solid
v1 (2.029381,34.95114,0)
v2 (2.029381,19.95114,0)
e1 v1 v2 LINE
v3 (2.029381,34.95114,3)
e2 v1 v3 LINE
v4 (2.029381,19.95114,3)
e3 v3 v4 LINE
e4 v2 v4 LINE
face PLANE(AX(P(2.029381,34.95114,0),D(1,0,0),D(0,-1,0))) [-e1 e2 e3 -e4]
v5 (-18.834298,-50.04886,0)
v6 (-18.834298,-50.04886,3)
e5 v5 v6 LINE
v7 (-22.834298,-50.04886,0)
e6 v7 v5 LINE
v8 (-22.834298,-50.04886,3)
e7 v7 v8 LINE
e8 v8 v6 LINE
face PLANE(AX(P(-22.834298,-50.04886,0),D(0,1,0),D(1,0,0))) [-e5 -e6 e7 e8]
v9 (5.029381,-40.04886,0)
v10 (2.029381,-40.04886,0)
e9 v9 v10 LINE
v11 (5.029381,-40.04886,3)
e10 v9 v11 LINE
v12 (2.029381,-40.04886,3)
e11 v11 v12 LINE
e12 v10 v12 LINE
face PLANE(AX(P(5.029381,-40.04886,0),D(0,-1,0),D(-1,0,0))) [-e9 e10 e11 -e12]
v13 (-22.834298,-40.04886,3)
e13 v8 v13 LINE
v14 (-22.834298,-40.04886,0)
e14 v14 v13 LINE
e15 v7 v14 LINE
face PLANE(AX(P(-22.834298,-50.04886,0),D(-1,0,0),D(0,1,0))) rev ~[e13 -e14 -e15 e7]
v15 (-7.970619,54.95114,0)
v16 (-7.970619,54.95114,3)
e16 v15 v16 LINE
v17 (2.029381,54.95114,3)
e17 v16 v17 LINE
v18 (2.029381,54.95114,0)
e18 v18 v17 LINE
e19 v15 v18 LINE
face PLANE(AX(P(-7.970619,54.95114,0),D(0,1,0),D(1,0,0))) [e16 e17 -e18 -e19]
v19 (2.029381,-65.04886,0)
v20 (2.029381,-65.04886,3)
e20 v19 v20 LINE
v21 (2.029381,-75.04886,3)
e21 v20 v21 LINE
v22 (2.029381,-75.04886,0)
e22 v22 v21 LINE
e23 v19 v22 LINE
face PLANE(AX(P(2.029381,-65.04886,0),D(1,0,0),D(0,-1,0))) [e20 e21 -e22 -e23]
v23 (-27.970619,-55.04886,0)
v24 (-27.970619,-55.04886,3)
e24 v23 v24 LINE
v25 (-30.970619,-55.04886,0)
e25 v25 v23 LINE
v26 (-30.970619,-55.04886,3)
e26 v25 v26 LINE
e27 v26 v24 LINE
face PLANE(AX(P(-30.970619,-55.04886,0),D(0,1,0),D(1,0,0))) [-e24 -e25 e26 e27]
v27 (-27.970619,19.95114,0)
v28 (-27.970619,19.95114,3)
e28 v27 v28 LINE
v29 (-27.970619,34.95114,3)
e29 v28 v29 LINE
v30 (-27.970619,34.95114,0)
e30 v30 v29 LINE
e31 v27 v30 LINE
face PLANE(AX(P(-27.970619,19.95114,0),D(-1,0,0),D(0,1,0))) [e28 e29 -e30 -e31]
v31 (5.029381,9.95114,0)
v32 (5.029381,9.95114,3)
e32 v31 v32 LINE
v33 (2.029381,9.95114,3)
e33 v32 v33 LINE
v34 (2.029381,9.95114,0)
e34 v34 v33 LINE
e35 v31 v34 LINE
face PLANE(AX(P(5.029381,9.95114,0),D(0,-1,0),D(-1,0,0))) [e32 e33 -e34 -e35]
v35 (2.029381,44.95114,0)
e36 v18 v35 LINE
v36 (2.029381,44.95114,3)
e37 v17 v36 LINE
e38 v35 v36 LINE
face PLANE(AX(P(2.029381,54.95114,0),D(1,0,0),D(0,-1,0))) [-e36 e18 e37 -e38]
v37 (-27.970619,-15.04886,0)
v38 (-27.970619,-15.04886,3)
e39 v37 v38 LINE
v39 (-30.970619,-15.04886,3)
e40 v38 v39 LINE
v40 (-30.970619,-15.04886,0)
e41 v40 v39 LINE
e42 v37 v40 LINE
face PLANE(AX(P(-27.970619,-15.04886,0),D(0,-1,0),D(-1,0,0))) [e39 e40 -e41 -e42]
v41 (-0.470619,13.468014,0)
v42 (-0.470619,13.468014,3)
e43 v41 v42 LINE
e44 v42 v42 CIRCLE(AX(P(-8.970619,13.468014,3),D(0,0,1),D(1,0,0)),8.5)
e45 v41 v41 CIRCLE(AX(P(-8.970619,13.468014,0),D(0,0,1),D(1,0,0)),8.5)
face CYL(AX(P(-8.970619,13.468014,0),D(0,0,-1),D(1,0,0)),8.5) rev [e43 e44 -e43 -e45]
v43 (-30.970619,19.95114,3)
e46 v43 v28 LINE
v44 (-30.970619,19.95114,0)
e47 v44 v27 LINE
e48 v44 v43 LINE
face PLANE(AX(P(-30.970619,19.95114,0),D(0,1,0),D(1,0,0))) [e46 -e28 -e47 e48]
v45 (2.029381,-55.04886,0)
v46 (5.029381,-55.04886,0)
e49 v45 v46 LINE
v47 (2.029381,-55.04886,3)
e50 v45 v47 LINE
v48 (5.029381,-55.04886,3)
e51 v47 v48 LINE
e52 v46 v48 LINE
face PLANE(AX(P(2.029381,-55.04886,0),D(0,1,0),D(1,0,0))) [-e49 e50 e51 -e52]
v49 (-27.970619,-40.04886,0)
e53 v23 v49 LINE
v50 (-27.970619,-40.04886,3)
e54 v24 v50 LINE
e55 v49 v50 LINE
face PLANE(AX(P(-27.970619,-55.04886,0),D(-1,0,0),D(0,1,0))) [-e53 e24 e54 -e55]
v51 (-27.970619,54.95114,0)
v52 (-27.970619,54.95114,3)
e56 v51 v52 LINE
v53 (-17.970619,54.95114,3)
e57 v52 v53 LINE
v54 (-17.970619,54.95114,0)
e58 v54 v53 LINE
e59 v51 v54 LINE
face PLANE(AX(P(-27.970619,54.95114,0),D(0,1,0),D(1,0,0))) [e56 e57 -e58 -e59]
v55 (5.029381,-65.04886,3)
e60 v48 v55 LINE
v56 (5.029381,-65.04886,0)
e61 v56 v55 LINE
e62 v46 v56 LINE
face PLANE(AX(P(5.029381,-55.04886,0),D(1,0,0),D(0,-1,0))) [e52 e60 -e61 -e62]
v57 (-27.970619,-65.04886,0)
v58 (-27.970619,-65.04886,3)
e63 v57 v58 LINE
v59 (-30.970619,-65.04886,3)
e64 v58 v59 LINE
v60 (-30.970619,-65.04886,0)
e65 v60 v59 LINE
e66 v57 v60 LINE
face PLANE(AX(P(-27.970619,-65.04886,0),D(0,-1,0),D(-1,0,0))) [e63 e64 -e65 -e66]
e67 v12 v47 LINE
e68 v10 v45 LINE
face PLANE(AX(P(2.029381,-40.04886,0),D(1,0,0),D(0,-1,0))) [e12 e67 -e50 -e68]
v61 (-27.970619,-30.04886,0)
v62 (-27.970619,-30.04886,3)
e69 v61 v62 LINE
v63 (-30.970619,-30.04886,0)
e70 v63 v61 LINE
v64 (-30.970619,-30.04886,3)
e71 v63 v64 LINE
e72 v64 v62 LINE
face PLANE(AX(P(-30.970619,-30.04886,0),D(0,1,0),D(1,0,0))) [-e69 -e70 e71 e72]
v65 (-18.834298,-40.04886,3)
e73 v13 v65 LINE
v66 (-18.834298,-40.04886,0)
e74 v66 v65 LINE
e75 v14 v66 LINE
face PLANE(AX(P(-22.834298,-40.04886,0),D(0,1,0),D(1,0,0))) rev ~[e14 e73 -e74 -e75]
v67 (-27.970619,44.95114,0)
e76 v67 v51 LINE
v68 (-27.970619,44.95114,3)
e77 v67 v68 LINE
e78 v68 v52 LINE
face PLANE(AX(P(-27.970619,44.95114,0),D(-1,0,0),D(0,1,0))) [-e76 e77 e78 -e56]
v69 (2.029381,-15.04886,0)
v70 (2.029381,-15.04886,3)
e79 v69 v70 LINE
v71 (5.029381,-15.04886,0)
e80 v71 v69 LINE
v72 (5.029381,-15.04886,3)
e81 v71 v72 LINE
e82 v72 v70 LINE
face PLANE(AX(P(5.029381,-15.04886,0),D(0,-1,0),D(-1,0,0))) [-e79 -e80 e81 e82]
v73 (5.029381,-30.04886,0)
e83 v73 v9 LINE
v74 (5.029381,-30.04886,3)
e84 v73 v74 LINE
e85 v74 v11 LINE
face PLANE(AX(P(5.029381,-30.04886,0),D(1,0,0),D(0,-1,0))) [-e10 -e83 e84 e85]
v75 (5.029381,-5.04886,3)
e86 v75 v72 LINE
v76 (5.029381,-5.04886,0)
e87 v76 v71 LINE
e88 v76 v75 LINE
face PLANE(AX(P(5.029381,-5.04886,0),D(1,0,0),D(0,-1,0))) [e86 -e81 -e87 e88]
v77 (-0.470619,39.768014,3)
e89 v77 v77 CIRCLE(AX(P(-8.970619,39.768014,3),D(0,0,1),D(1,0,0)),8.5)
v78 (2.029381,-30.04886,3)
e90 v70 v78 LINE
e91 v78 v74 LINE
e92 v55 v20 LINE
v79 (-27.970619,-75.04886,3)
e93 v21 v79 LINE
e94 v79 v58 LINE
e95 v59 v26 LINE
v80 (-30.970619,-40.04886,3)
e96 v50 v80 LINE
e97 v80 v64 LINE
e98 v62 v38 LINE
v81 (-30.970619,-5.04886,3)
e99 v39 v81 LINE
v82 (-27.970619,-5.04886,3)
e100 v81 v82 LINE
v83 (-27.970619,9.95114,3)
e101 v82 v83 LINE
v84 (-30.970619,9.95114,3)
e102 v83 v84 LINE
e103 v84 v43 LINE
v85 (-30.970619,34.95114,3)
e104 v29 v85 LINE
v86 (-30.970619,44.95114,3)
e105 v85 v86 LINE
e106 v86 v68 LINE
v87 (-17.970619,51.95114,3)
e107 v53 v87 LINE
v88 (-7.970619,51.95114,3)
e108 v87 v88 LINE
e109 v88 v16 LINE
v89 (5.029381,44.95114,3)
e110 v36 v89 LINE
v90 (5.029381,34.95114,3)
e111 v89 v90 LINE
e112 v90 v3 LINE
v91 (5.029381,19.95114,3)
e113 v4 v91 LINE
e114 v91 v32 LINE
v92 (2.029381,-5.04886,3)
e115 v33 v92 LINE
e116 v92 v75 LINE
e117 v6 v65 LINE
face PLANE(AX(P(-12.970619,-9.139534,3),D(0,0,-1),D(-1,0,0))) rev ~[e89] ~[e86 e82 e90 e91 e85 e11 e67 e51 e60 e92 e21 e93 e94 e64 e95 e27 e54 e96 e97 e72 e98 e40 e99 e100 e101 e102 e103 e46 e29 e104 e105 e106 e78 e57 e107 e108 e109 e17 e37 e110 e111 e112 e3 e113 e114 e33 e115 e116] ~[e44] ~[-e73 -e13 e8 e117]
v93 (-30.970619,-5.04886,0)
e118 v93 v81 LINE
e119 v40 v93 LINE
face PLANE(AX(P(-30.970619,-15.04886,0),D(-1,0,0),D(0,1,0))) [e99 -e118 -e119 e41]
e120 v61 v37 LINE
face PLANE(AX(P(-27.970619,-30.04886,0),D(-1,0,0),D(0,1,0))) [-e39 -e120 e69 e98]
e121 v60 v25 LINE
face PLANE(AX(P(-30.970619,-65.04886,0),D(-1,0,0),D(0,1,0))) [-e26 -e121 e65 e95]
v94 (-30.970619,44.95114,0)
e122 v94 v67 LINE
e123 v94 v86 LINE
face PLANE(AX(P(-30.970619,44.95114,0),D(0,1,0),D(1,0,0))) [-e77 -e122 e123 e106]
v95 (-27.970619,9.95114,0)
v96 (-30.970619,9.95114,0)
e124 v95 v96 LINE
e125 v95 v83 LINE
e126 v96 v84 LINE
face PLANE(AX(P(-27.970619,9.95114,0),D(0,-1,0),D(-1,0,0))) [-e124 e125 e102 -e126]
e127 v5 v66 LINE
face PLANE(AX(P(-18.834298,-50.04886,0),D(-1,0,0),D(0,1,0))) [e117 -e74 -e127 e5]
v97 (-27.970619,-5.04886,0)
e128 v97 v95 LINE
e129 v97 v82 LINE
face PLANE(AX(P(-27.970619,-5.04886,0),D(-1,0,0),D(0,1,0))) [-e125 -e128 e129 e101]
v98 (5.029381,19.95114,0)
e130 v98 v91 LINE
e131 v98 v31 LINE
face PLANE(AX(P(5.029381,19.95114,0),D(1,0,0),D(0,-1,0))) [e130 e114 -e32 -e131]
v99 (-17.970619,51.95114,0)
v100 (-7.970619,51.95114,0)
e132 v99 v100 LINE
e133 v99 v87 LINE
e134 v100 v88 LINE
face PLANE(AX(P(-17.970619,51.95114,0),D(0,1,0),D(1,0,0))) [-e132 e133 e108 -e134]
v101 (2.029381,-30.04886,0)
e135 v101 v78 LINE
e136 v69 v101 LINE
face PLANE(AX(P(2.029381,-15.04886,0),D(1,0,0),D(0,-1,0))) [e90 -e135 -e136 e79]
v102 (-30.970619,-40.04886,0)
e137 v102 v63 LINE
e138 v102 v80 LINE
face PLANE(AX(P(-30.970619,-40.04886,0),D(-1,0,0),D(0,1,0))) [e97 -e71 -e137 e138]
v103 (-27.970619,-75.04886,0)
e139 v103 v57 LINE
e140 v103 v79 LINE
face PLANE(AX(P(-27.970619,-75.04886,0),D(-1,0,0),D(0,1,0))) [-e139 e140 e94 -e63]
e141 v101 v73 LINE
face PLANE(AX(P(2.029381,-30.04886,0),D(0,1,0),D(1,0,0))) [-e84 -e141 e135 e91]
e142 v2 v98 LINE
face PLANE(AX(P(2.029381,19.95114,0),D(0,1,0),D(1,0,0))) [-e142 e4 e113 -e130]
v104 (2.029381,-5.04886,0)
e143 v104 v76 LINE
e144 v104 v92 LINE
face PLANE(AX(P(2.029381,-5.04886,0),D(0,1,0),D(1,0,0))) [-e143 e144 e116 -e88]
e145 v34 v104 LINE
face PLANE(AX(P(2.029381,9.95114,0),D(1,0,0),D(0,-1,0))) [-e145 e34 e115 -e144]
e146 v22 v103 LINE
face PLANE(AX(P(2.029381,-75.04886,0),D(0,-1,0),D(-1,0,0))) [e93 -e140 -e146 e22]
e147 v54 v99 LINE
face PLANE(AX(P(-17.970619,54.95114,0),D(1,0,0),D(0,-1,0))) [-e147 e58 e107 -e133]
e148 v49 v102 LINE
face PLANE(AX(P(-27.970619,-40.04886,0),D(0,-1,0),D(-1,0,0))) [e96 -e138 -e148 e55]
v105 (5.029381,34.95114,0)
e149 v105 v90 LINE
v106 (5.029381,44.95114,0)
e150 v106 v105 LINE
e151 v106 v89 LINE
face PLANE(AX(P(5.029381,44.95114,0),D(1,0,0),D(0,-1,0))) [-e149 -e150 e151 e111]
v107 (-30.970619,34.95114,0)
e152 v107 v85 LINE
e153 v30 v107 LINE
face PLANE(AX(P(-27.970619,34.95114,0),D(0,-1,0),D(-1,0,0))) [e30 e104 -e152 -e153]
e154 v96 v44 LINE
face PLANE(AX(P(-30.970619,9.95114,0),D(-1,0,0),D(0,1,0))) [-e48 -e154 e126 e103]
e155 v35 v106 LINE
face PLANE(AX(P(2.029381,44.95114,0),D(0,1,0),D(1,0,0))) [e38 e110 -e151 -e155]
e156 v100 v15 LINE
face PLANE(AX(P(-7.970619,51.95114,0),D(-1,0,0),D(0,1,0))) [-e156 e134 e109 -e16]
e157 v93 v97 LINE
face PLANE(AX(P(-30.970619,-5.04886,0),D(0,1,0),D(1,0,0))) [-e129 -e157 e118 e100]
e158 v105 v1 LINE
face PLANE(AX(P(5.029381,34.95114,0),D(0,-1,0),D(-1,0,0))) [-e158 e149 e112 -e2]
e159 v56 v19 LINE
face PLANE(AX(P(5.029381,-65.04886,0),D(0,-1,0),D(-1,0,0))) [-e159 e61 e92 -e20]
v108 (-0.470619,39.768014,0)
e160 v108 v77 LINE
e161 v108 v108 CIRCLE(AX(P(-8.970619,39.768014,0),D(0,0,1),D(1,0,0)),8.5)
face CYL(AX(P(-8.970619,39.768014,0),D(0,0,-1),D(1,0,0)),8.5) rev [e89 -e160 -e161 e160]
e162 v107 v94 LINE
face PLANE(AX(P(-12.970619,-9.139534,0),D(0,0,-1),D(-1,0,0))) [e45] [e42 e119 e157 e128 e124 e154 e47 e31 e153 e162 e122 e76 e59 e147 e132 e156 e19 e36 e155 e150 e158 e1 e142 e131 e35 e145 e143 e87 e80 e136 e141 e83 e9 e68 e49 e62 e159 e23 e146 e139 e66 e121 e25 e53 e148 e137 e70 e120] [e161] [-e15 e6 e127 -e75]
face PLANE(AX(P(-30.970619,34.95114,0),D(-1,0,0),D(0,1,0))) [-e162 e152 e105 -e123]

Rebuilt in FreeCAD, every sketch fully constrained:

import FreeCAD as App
import Part
import Sketcher

V = App.Vector


def add_polygon(sketch, points):
    """Adds a closed chain of lines whose ends are joined by coincident constraints."""
    first, n = sketch.GeometryCount, len(points)
    for a, b in zip(points, points[1:] + points[:1]):
        sketch.addGeometry(Part.LineSegment(App.Vector(*a, 0), App.Vector(*b, 0)), False)
    for i in range(n):
        sketch.addConstraint(Sketcher.Constraint("Coincident", first + i, 2, first + (i + 1) % n, 1))

doc = App.newDocument("Part")
params = doc.addObject("Spreadsheet::Sheet", "Params")
for row, (alias, value) in enumerate([
    ("sketch1_diameter", "17 mm"),
    ("sketch1_width", "30 mm"),
    ("sketch1_width2", "3 mm"),
    ("sketch1_width3", "4 mm"),
    ("sketch1_height", "15 mm"),
    ("pad1_length", "3 mm"),
], start=1):
    params.set(f"A{row}", alias)
    params.set(f"B{row}", "=" + value)
    params.setAlias(f"B{row}", alias)

body = doc.addObject("PartDesign::Body", "Body")

# Sketch on XY plane
sketch1 = doc.addObject("Sketcher::SketchObject", "Sketch")
body.addObject(sketch1)
sketch1.AttachmentSupport = (doc.XY_Plane, [""])
sketch1.MapMode = "FlatFace"
add_polygon(sketch1, [(-28, -75), (2, -75), (2, -65), (5, -65), (5, -55), (2, -55), (2, -40), (5, -40), (5, -30), (2, -30), (2, -15), (5, -15), (5, -5), (2, -5), (2, 10), (5, 10), (5, 20), (2, 20), (2, 35), (5, 35), (5, 45), (2, 45), (2, 55), (-8, 55), (-8, 52), (-18, 52), (-18, 55), (-28, 55), (-28, 45), (-31, 45), (-31, 35), (-28, 35), (-28, 20), (-31, 20), (-31, 10), (-28, 10), (-28, -5), (-31, -5), (-31, -15), (-28, -15), (-28, -30), (-31, -30), (-31, -40), (-28, -40), (-28, -55), (-31, -55), (-31, -65), (-28, -65)])  # lines 0-47
add_polygon(sketch1, [(-22.8, -50), (-22.8, -40), (-18.8, -40), (-18.8, -50)])  # lines 48-51
sketch1.addGeometry(Part.Circle(V(-9, 13.5, 0), V(0, 0, 1), 8.5), False)  # 52
sketch1.addGeometry(Part.Circle(V(-9, 39.8, 0), V(0, 0, 1), 8.5), False)  # 53
sketch1.addConstraint([
    Sketcher.Constraint("Horizontal", 0),
    Sketcher.Constraint("Vertical", 1),
    Sketcher.Constraint("Horizontal", 2),
    Sketcher.Constraint("Vertical", 3),
    Sketcher.Constraint("Horizontal", 4),
    Sketcher.Constraint("Vertical", 5),
    Sketcher.Constraint("Horizontal", 6),
    Sketcher.Constraint("Vertical", 7),
    Sketcher.Constraint("Horizontal", 8),
    Sketcher.Constraint("Vertical", 9),
    Sketcher.Constraint("Horizontal", 10),
    Sketcher.Constraint("Vertical", 11),
    Sketcher.Constraint("Horizontal", 12),
    Sketcher.Constraint("Vertical", 13),
    Sketcher.Constraint("Horizontal", 14),
    Sketcher.Constraint("Vertical", 15),
    Sketcher.Constraint("Horizontal", 16),
    Sketcher.Constraint("Vertical", 17),
    Sketcher.Constraint("Horizontal", 18),
    Sketcher.Constraint("Vertical", 19),
    Sketcher.Constraint("Horizontal", 20),
    Sketcher.Constraint("Vertical", 21),
    Sketcher.Constraint("Horizontal", 22),
    Sketcher.Constraint("Vertical", 23),
    Sketcher.Constraint("Horizontal", 24),
    Sketcher.Constraint("Vertical", 25),
    Sketcher.Constraint("Horizontal", 26),
    Sketcher.Constraint("Vertical", 27),
    Sketcher.Constraint("Horizontal", 28),
    Sketcher.Constraint("Vertical", 29),
    Sketcher.Constraint("Horizontal", 30),
    Sketcher.Constraint("Vertical", 31),
    Sketcher.Constraint("Horizontal", 32),
    Sketcher.Constraint("Vertical", 33),
    Sketcher.Constraint("Horizontal", 34),
    Sketcher.Constraint("Vertical", 35),
    Sketcher.Constraint("Horizontal", 36),
    Sketcher.Constraint("Vertical", 37),
    Sketcher.Constraint("Horizontal", 38),
    Sketcher.Constraint("Vertical", 39),
    Sketcher.Constraint("Horizontal", 40),
    Sketcher.Constraint("Vertical", 41),
    Sketcher.Constraint("Horizontal", 42),
    Sketcher.Constraint("Vertical", 43),
    Sketcher.Constraint("Horizontal", 44),
    Sketcher.Constraint("Vertical", 45),
    Sketcher.Constraint("Horizontal", 46),
    Sketcher.Constraint("Vertical", 47),
    Sketcher.Constraint("Vertical", 48),
    Sketcher.Constraint("Horizontal", 49),
    Sketcher.Constraint("Vertical", 50),
    Sketcher.Constraint("Horizontal", 51),
    Sketcher.Constraint("Equal", 52, 53),
    Sketcher.Constraint("Horizontal", 22, 2, 25, 2),
    Sketcher.Constraint("Horizontal", 20, 2, 27, 2),
    Sketcher.Constraint("Horizontal", 18, 2, 29, 2),
    Sketcher.Constraint("Horizontal", 16, 2, 31, 2),
    Sketcher.Constraint("Horizontal", 14, 2, 33, 2),
    Sketcher.Constraint("Horizontal", 12, 2, 35, 2),
    Sketcher.Constraint("Horizontal", 10, 2, 37, 2),
    Sketcher.Constraint("Horizontal", 8, 2, 39, 2),
    Sketcher.Constraint("Horizontal", 6, 2, 41, 2),
    Sketcher.Constraint("Horizontal", 4, 2, 43, 2),
    Sketcher.Constraint("Horizontal", 2, 2, 45, 2),
    Sketcher.Constraint("Horizontal", 42, 2, 48, 2),
    Sketcher.Constraint("Vertical", 52, 3, 53, 3),
    Sketcher.Constraint("Vertical", 1, 2, 4, 2),
    Sketcher.Constraint("Vertical", 3, 2, 6, 2),
    Sketcher.Constraint("Vertical", 5, 2, 8, 2),
    Sketcher.Constraint("Vertical", 7, 2, 10, 2),
    Sketcher.Constraint("Vertical", 9, 2, 12, 2),
    Sketcher.Constraint("Vertical", 11, 2, 14, 2),
    Sketcher.Constraint("Vertical", 13, 2, 16, 2),
    Sketcher.Constraint("Vertical", 15, 2, 18, 2),
    Sketcher.Constraint("Vertical", 17, 2, 20, 2),
    Sketcher.Constraint("Vertical", 27, 2, 30, 2),
    Sketcher.Constraint("Vertical", 29, 2, 32, 2),
    Sketcher.Constraint("Vertical", 31, 2, 34, 2),
    Sketcher.Constraint("Vertical", 33, 2, 36, 2),
    Sketcher.Constraint("Vertical", 35, 2, 38, 2),
    Sketcher.Constraint("Vertical", 37, 2, 40, 2),
    Sketcher.Constraint("Vertical", 39, 2, 42, 2),
    Sketcher.Constraint("Vertical", 41, 2, 44, 2),
    Sketcher.Constraint("Vertical", 43, 2, 46, 2),
    Sketcher.Constraint("Equal", 22, 24),
    Sketcher.Constraint("Equal", 24, 26),
    Sketcher.Constraint("Equal", 20, 28),
    Sketcher.Constraint("Equal", 26, 1),
    Sketcher.Constraint("Equal", 1, 3),
    Sketcher.Constraint("Equal", 3, 7),
    Sketcher.Constraint("Equal", 5, 9),
    Sketcher.Constraint("Equal", 7, 11),
    Sketcher.Constraint("Equal", 9, 13),
    Sketcher.Constraint("Equal", 11, 15),
    Sketcher.Constraint("Equal", 13, 17),
    Sketcher.Constraint("Equal", 15, 19),
    Sketcher.Constraint("Equal", 19, 21),
    Sketcher.Constraint("Equal", 46, 23),
    Sketcher.Constraint("Equal", 47, 48),
    Sketcher.Constraint("Diameter", 52, 17.0),
    Sketcher.Constraint("DistanceX", 0, 1, 0, 2, 30.0),
    Sketcher.Constraint("DistanceX", 2, 1, 2, 2, 3.0),
    Sketcher.Constraint("DistanceX", 49, 1, 49, 2, 4.0),
    Sketcher.Constraint("DistanceY", 5, 1, 5, 2, 15.0),
    Sketcher.Constraint("DistanceX", 52, 3, 0, 2, 11.0),
    Sketcher.Constraint("DistanceY", 52, 3, 53, 3, 26.3),
    Sketcher.Constraint("DistanceX", 52, 3, -1, 1, 8.970619),
    Sketcher.Constraint("DistanceY", 0, 2, -1, 1, 75.04886),
    Sketcher.Constraint("DistanceX", 42, 2, 48, 2, 5.136321),
    Sketcher.Constraint("DistanceY", -1, 1, 52, 3, 13.468014),
])
sketch1.setExpression("Constraints[151]", "Params.sketch1_diameter")
sketch1.setExpression("Constraints[152]", "Params.sketch1_width")
sketch1.setExpression("Constraints[153]", "Params.sketch1_width2")
sketch1.setExpression("Constraints[154]", "Params.sketch1_width3")
sketch1.setExpression("Constraints[155]", "Params.sketch1_height")
pad1 = doc.addObject("PartDesign::Pad", "Pad")
body.addObject(pad1)
pad1.Profile = sketch1
pad1.setExpression("Length", "Params.pad1_length")

doc.recompute()
